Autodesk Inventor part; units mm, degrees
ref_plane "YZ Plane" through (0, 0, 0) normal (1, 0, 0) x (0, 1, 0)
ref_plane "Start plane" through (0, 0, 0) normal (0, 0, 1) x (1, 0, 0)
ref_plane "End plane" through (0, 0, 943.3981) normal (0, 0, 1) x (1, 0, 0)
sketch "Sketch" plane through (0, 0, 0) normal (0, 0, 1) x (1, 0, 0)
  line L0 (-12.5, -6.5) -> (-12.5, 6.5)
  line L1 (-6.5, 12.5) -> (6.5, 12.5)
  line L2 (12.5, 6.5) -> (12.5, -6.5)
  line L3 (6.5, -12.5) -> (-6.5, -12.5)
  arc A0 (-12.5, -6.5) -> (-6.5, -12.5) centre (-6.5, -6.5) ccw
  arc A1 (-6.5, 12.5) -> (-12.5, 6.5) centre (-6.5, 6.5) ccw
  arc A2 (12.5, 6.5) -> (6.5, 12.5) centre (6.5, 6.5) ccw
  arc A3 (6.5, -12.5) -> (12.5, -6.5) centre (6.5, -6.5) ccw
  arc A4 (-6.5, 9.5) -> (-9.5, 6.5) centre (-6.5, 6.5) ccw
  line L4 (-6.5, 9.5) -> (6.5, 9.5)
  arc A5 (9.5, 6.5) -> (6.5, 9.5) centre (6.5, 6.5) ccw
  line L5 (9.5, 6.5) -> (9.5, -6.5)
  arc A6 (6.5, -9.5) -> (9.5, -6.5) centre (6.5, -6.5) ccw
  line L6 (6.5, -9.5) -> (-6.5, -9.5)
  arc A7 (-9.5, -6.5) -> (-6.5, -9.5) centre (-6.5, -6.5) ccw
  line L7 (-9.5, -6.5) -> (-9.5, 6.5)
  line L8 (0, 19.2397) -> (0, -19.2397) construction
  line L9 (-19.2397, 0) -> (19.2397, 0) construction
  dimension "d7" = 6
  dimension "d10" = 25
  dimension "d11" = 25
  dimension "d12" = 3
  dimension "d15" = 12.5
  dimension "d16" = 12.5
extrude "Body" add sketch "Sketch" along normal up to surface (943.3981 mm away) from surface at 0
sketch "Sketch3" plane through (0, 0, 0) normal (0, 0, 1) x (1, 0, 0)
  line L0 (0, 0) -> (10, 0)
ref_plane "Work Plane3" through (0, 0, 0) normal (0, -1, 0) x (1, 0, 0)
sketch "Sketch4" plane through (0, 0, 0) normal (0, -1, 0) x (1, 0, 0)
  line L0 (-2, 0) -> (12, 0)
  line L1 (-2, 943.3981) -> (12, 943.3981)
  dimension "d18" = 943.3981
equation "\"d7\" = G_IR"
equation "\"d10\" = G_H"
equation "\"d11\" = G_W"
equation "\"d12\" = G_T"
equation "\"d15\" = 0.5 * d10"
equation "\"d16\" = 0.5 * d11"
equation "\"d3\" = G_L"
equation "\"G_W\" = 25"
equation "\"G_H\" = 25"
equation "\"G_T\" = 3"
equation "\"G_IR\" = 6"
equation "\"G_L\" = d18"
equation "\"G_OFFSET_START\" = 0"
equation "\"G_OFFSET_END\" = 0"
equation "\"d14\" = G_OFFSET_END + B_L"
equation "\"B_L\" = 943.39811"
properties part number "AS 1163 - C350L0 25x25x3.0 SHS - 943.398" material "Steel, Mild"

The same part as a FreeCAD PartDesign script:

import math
import FreeCAD as App
import Part
import Sketcher
from FreeCAD import Vector

doc = App.newDocument("Part")
params = doc.addObject("Spreadsheet::Sheet", "Params")
for row, (alias, value) in enumerate([
    ("sketch1_radius", "6 mm"),
    ("sketch1_radius2", "3 mm"),
    ("pad1_length", "943.3981 mm"),
], start=1):
    params.set(f"A{row}", alias)
    params.set(f"B{row}", "=" + value)
    params.setAlias(f"B{row}", alias)

body = doc.addObject("PartDesign::Body", "Body")

sketch1 = doc.addObject("Sketcher::SketchObject", "Sketch")
body.addObject(sketch1)
sketch1.AttachmentSupport = (doc.XY_Plane, [""])
sketch1.MapMode = "FlatFace"
sketch1.addGeometry([
    Part.LineSegment(Vector(-12.5, 6.5, 0), Vector(-12.5, -6.5, 0)),
    Part.ArcOfCircle(Part.Circle(Vector(-6.5, -6.5, 0), Vector(0, 0, 1), 6), math.radians(180), math.radians(270)),
    Part.LineSegment(Vector(-6.5, -12.5, 0), Vector(6.5, -12.5, 0)),
    Part.ArcOfCircle(Part.Circle(Vector(6.5, -6.5, 0), Vector(0, 0, 1), 6), math.radians(-90), math.radians(0)),
    Part.LineSegment(Vector(12.5, -6.5, 0), Vector(12.5, 6.5, 0)),
    Part.ArcOfCircle(Part.Circle(Vector(6.5, 6.5, 0), Vector(0, 0, 1), 6), math.radians(0), math.radians(90)),
    Part.LineSegment(Vector(6.5, 12.5, 0), Vector(-6.5, 12.5, 0)),
    Part.ArcOfCircle(Part.Circle(Vector(-6.5, 6.5, 0), Vector(0, 0, 1), 6), math.radians(90), math.radians(180)),
    Part.ArcOfCircle(Part.Circle(Vector(-6.5, 6.5, 0), Vector(0, 0, 1), 3), math.radians(90), math.radians(180)),
    Part.LineSegment(Vector(-6.5, 9.5, 0), Vector(6.5, 9.5, 0)),
    Part.ArcOfCircle(Part.Circle(Vector(6.5, 6.5, 0), Vector(0, 0, 1), 3), math.radians(0), math.radians(90)),
    Part.LineSegment(Vector(9.5, 6.5, 0), Vector(9.5, -6.5, 0)),
    Part.ArcOfCircle(Part.Circle(Vector(6.5, -6.5, 0), Vector(0, 0, 1), 3), math.radians(-90), math.radians(0)),
    Part.LineSegment(Vector(6.5, -9.5, 0), Vector(-6.5, -9.5, 0)),
    Part.ArcOfCircle(Part.Circle(Vector(-6.5, -6.5, 0), Vector(0, 0, 1), 3), math.radians(180), math.radians(270)),
    Part.LineSegment(Vector(-9.5, -6.5, 0), Vector(-9.5, 6.5, 0)),
], False)
sketch1.addConstraint([
    Sketcher.Constraint("Tangent", 0, 2, 1, 1),
    Sketcher.Constraint("Tangent", 1, 2, 2, 1),
    Sketcher.Constraint("Tangent", 2, 2, 3, 1),
    Sketcher.Constraint("Tangent", 3, 2, 4, 1),
    Sketcher.Constraint("Tangent", 4, 2, 5, 1),
    Sketcher.Constraint("Tangent", 5, 2, 6, 1),
    Sketcher.Constraint("Tangent", 6, 2, 7, 1),
    Sketcher.Constraint("Tangent", 7, 2, 0, 1),
    Sketcher.Constraint("Tangent", 8, 1, 9, 1),
    Sketcher.Constraint("Tangent", 9, 2, 10, 2),
    Sketcher.Constraint("Tangent", 10, 1, 11, 1),
    Sketcher.Constraint("Tangent", 11, 2, 12, 2),
    Sketcher.Constraint("Tangent", 12, 1, 13, 1),
    Sketcher.Constraint("Tangent", 13, 2, 14, 2),
    Sketcher.Constraint("Tangent", 14, 1, 15, 1),
    Sketcher.Constraint("Tangent", 15, 2, 8, 2),
    Sketcher.Constraint("Vertical", 0),
    Sketcher.Constraint("Horizontal", 2),
    Sketcher.Constraint("Vertical", 4),
    Sketcher.Constraint("Horizontal", 6),
    Sketcher.Constraint("Horizontal", 9),
    Sketcher.Constraint("Vertical", 11),
    Sketcher.Constraint("Horizontal", 13),
    Sketcher.Constraint("Vertical", 15),
    Sketcher.Constraint("Coincident", 8, 3, 7, 3),
    Sketcher.Constraint("Coincident", 10, 3, 5, 3),
    Sketcher.Constraint("Coincident", 12, 3, 3, 3),
    Sketcher.Constraint("Equal", 1, 3),
    Sketcher.Constraint("Equal", 3, 5),
    Sketcher.Constraint("Equal", 5, 7),
    Sketcher.Constraint("Equal", 12, 14),
    Sketcher.Constraint("Symmetric", 1, 3, 5, 3, -1, 1),
    Sketcher.Constraint("Equal", 13, 0),
    Sketcher.Constraint("Radius", 1, 6.0),
    Sketcher.Constraint("Radius", 8, 3.0),
    Sketcher.Constraint("DistanceX", 0, 2, -1, 1, 12.5),
])
sketch1.setExpression("Constraints[33]", "Params.sketch1_radius")
sketch1.setExpression("Constraints[34]", "Params.sketch1_radius2")
pad1 = doc.addObject("PartDesign::Pad", "Pad")
body.addObject(pad1)
pad1.Profile = sketch1
pad1.setExpression("Length", "Params.pad1_length")

doc.recompute()
